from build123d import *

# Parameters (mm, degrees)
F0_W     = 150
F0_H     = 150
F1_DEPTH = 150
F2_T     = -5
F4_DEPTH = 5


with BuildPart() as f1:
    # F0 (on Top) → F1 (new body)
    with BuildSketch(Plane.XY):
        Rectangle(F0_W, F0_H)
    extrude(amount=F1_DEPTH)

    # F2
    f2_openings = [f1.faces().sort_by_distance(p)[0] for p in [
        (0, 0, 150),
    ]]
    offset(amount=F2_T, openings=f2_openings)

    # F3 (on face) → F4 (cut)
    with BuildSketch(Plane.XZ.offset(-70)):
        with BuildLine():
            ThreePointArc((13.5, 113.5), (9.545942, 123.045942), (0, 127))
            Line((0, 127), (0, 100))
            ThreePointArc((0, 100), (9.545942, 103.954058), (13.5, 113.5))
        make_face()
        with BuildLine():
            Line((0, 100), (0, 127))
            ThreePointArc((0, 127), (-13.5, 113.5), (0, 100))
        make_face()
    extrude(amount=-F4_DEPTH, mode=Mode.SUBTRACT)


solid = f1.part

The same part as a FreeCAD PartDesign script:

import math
import FreeCAD as App
import Part
import Sketcher
from FreeCAD import Vector


def faces_at(feature, points):
    """Names of the faces that lie closest to the given points."""
    faces = feature.Shape.Faces
    near = lambda p: min(range(len(faces)), key=lambda i: faces[i].distToShape(Part.Vertex(*p))[0])
    return sorted({f"Face{near(p) + 1}" for p in points})

doc = App.newDocument("Part")
body = doc.addObject("PartDesign::Body", "Body")

# Sketch on XY plane
sketch1 = doc.addObject("Sketcher::SketchObject", "Sketch")
body.addObject(sketch1)
sketch1.AttachmentSupport = (doc.XY_Plane, [""])
sketch1.MapMode = "FlatFace"
sketch1.addGeometry([
    Part.LineSegment(Vector(-75, 75, 0), Vector(-75, -75, 0)),
    Part.LineSegment(Vector(-75, -75, 0), Vector(75, -75, 0)),
    Part.LineSegment(Vector(75, -75, 0), Vector(75, 75, 0)),
    Part.LineSegment(Vector(75, 75, 0), Vector(-75, 75, 0)),
], False)
sketch1.addConstraint([
    Sketcher.Constraint("Coincident", 0, 2, 1, 1),
    Sketcher.Constraint("Coincident", 1, 2, 2, 1),
    Sketcher.Constraint("Coincident", 2, 2, 3, 1),
    Sketcher.Constraint("Coincident", 3, 2, 0, 1),
    Sketcher.Constraint("Vertical", 0),
    Sketcher.Constraint("Horizontal", 1),
    Sketcher.Constraint("Vertical", 2),
    Sketcher.Constraint("Horizontal", 3),
    Sketcher.Constraint("Symmetric", 0, 2, 2, 2, -1, 1),
    Sketcher.Constraint("Equal", 3, 0),
    Sketcher.Constraint("DistanceX", 1, 1, 1, 2, 150.0),
])
pad1 = doc.addObject("PartDesign::Pad", "Pad")
body.addObject(pad1)
pad1.Profile = sketch1
pad1.Length = 150
doc.recompute()

thickness = doc.addObject("PartDesign::Thickness", "Thickness")
body.addObject(thickness)
thickness.Base = (pad1, faces_at(pad1, [(0, 0, 150)]))
thickness.Value = 5
thickness.Reversed = True
thickness.Join = "Arc"

# Sketch on XZ plane
sketch2 = doc.addObject("Sketcher::SketchObject", "Sketch001")
body.addObject(sketch2)
sketch2.AttachmentSupport = (doc.XZ_Plane, [""])
sketch2.MapMode = "FlatFace"
sketch2.AttachmentOffset = App.Placement(Vector(0, 0, -70), App.Rotation())
sketch2.addGeometry([
    Part.ArcOfCircle(Part.Circle(Vector(0, 114, 0), Vector(0, 0, 1), 13), math.radians(0), math.radians(90)),
    Part.ArcOfCircle(Part.Circle(Vector(0, 114, 0), Vector(0, 0, 1), 14), math.radians(90), math.radians(270)),
    Part.ArcOfCircle(Part.Circle(Vector(0, 113, 0), Vector(0, 0, 1), 13), math.radians(-90), math.radians(0)),
], False)
sketch2.addConstraint([
    Sketcher.Constraint("Tangent", 0, 2, 1, 1),
    Sketcher.Constraint("Tangent", 1, 2, 2, 1),
    Sketcher.Constraint("Tangent", 2, 2, 0, 1),
    Sketcher.Constraint("PointOnObject", 0, 3, -2),
    Sketcher.Constraint("PointOnObject", 0, 2, -2),
    Sketcher.Constraint("PointOnObject", 1, 2, -2),
    Sketcher.Constraint("Horizontal", 1, 3, 2, 2),
    Sketcher.Constraint("Radius", 0, 13.499998),
    Sketcher.Constraint("DistanceY", -1, 1, 0, 2, 127.0),
])
pocket1 = doc.addObject("PartDesign::Pocket", "Pocket")
body.addObject(pocket1)
pocket1.Profile = sketch2
pocket1.Length = 5

doc.recompute()
